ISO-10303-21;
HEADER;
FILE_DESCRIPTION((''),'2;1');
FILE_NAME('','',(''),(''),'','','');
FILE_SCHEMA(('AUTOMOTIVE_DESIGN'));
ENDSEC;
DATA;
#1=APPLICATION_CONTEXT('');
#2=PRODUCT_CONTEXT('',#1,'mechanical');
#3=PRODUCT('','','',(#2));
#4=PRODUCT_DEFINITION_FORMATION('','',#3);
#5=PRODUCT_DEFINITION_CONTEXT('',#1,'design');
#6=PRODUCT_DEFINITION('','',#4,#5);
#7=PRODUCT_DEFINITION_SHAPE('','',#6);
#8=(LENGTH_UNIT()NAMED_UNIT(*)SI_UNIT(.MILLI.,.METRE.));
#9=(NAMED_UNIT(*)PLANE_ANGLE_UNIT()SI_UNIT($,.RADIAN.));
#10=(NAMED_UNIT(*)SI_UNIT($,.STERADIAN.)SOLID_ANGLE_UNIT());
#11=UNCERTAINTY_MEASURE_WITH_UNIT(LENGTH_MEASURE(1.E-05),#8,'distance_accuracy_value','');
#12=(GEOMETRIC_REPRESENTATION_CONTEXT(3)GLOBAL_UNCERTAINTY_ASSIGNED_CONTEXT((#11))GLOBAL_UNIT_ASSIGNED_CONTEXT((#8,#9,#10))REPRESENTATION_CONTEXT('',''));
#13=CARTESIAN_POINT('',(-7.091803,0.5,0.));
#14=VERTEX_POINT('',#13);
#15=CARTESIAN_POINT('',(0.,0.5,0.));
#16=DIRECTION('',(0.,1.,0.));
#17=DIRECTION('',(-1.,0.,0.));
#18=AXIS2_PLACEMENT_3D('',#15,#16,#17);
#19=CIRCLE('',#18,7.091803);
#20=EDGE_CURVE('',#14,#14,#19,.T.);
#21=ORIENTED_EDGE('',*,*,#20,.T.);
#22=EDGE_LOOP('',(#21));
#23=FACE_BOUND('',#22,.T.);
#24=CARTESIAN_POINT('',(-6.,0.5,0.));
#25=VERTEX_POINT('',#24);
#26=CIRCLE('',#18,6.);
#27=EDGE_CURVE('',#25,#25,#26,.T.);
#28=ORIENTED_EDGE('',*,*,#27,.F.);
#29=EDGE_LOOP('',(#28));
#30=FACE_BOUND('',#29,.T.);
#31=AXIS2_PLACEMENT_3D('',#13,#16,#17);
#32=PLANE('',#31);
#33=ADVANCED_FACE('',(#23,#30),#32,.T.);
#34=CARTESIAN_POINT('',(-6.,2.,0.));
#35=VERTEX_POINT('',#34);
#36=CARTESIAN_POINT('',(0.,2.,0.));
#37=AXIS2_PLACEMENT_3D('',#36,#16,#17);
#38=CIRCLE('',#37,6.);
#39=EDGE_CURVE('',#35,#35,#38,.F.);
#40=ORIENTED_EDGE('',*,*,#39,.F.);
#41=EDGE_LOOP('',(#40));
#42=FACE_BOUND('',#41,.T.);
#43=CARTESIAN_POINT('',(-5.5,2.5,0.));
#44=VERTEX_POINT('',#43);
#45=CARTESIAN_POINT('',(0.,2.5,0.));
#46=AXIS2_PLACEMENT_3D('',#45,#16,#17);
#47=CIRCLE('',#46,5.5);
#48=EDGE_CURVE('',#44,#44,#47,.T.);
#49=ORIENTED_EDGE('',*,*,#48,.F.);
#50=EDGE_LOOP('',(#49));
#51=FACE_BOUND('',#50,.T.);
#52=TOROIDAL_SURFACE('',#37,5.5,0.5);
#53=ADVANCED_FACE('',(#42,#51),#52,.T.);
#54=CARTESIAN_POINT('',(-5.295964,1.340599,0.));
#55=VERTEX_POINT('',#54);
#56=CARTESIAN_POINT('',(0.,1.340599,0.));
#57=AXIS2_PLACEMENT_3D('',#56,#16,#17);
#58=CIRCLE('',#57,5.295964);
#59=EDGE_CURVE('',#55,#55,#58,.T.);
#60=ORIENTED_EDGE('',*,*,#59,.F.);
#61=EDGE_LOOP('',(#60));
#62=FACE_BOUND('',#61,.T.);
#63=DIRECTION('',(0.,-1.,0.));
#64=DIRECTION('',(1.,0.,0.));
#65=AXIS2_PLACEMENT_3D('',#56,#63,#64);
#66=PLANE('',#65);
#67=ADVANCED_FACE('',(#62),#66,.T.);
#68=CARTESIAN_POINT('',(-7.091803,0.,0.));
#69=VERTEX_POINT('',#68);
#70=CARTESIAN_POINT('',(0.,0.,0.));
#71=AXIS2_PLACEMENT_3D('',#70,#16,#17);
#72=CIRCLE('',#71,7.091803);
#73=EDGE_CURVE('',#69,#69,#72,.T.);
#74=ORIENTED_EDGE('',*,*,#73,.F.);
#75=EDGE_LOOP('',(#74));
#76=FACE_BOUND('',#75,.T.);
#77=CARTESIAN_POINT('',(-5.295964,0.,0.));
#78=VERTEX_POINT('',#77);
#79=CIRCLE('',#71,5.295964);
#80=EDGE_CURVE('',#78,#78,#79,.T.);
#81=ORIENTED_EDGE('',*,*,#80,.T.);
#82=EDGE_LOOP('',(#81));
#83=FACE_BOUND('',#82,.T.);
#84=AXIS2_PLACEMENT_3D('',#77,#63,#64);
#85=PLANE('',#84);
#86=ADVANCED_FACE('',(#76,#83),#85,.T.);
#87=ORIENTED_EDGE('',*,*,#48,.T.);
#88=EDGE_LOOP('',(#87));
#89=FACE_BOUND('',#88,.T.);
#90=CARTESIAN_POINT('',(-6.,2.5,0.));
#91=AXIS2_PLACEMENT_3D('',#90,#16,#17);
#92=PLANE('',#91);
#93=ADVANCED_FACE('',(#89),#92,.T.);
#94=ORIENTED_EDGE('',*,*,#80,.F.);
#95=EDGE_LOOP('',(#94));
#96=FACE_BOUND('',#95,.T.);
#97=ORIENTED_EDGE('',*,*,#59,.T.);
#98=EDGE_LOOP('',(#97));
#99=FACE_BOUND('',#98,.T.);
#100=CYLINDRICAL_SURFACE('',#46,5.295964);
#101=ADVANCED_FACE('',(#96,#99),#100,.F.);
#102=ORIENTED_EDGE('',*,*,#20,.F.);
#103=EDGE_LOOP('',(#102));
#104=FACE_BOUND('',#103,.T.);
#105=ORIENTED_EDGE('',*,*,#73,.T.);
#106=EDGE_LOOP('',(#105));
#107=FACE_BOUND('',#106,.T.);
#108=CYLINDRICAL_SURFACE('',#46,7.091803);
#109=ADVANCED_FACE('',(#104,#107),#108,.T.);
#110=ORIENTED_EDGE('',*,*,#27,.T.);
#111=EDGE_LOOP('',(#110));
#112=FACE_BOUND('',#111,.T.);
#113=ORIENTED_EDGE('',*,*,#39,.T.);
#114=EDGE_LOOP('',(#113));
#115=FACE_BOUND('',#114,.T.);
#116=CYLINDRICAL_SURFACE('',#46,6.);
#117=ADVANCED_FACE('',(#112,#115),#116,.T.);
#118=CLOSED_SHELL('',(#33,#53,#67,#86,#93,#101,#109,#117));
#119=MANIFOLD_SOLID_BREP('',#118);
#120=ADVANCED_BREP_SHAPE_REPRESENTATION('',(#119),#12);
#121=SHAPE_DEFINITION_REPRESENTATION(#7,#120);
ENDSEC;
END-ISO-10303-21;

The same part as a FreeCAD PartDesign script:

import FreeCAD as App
import Part
import Sketcher
Q = App.Units.Quantity


def edges_at(feature, points):
    """Names of the edges that pass closest to the given points."""
    edges = feature.Shape.Edges
    near = lambda p: min(range(len(edges)), key=lambda i: edges[i].distToShape(Part.Vertex(*p))[0])
    return sorted({f"Edge{near(p) + 1}" for p in points})

doc = App.newDocument("Part")
body = doc.addObject("PartDesign::Body", "Body")

sketch1 = body.newObject("Sketcher::SketchObject", "Sketch")
sketch1.AttachmentSupport = (doc.getObject("XY_Plane"), [""])
sketch1.MapMode = "FlatFace"
sketch1.addGeometry([
    Part.LineSegment(App.Vector(-7.1, 0, 0), App.Vector(-5.3, 0, 0)),
    Part.LineSegment(App.Vector(-5.3, 0, 0), App.Vector(-5.3, 1.3, 0)),
    Part.LineSegment(App.Vector(-5.3, 1.3, 0), App.Vector(0, 1.3, 0)),
    Part.LineSegment(App.Vector(0, 1.3, 0), App.Vector(0, 2.5, 0)),
    Part.LineSegment(App.Vector(0, 2.5, 0), App.Vector(-6, 2.5, 0)),
    Part.LineSegment(App.Vector(-6, 2.5, 0), App.Vector(-6, 0.5, 0)),
    Part.LineSegment(App.Vector(-6, 0.5, 0), App.Vector(-7.1, 0.5, 0)),
    Part.LineSegment(App.Vector(-7.1, 0.5, 0), App.Vector(-7.1, 0, 0)),
], False)
sketch1.addConstraint([
    Sketcher.Constraint("Coincident", 0, 2, 1, 1),
    Sketcher.Constraint("Coincident", 1, 2, 2, 1),
    Sketcher.Constraint("Coincident", 2, 2, 3, 1),
    Sketcher.Constraint("Coincident", 3, 2, 4, 1),
    Sketcher.Constraint("Coincident", 4, 2, 5, 1),
    Sketcher.Constraint("Coincident", 5, 2, 6, 1),
    Sketcher.Constraint("Coincident", 6, 2, 7, 1),
    Sketcher.Constraint("Coincident", 7, 2, 0, 1),
    Sketcher.Constraint("Horizontal", 0),
    Sketcher.Constraint("Vertical", 1),
    Sketcher.Constraint("Horizontal", 2),
    Sketcher.Constraint("Vertical", 3),
    Sketcher.Constraint("Horizontal", 4),
    Sketcher.Constraint("Vertical", 5),
    Sketcher.Constraint("Horizontal", 6),
    Sketcher.Constraint("Vertical", 7),
    Sketcher.Constraint("PointOnObject", 0, 2, -1),
    Sketcher.Constraint("PointOnObject", 2, 2, -2),
    Sketcher.Constraint("DistanceX", 4, 2, 4, 1, Q("6 mm")),
    Sketcher.Constraint("DistanceY", 5, 2, 5, 1, Q("2 mm")),
    Sketcher.Constraint("DistanceY", 7, 2, 7, 1, Q("0.5 mm")),
    Sketcher.Constraint("DistanceY", 1, 1, 1, 2, Q("1.340599 mm")),
    Sketcher.Constraint("DistanceX", 0, 1, 0, 2, Q("1.795839 mm")),
    Sketcher.Constraint("DistanceX", 2, 1, 2, 2, Q("5.295964 mm")),
])
revolution = body.newObject("PartDesign::Revolution", "Revolution")
revolution.Profile = sketch1
revolution.ReferenceAxis = (sketch1, ["V_Axis"])
revolution.Angle = 360
doc.recompute()

fillet = body.newObject("PartDesign::Fillet", "Fillet")
fillet.Base = (revolution, edges_at(revolution, [(6, 2.5, 0)]))
fillet.Radius = 0.5

doc.recompute()
